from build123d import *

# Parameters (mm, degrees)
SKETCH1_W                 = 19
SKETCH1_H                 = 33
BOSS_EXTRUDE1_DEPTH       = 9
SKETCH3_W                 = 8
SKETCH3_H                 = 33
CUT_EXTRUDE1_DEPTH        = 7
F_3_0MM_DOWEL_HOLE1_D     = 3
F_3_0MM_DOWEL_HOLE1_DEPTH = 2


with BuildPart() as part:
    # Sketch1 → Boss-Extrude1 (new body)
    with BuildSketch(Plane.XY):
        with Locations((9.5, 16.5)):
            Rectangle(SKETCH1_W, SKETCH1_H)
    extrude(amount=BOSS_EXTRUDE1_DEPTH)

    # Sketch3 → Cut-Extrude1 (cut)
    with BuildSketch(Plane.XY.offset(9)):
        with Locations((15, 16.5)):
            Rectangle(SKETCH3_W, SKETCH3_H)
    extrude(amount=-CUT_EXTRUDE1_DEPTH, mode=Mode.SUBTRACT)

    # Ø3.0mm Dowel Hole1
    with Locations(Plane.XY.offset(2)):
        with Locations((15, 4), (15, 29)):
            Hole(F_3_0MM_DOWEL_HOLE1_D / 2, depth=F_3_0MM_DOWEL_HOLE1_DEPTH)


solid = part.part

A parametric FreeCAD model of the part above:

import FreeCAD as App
import Part
import Sketcher
from FreeCAD import Vector
Q = App.Units.Quantity

doc = App.newDocument("Part")
params = doc.addObject("Spreadsheet::Sheet", "Params")
for row, (alias, value) in enumerate([
    ("sketch1_width", "19 mm"),
    ("sketch1_height", "33 mm"),
    ("pad1_length", "9 mm"),
    ("sketch2_width", "8 mm"),
    ("sketch2_height", "33 mm"),
    ("pocket1_length", "7 mm"),
    ("sketch3_diameter", "3 mm"),
    ("hole_diameter", "3 mm"),
    ("hole_depth", "2 mm"),
], start=1):
    params.set(f"A{row}", alias)
    params.set(f"B{row}", "=" + value)
    params.setAlias(f"B{row}", alias)

body = doc.addObject("PartDesign::Body", "Body")

# Sketch on XY plane
sketch1 = body.newObject("Sketcher::SketchObject", "Sketch")
sketch1.AttachmentSupport = (doc.getObject("XY_Plane"), [""])
sketch1.MapMode = "FlatFace"
sketch1.addGeometry([
    Part.LineSegment(Vector(0, 33, 0), Vector(0, 0, 0)),
    Part.LineSegment(Vector(0, 0, 0), Vector(19, 0, 0)),
    Part.LineSegment(Vector(19, 0, 0), Vector(19, 33, 0)),
    Part.LineSegment(Vector(19, 33, 0), Vector(0, 33, 0)),
], False)
sketch1.addConstraint([
    Sketcher.Constraint("Coincident", 0, 2, 1, 1),
    Sketcher.Constraint("Coincident", 1, 2, 2, 1),
    Sketcher.Constraint("Coincident", 2, 2, 3, 1),
    Sketcher.Constraint("Coincident", 3, 2, 0, 1),
    Sketcher.Constraint("Vertical", 0),
    Sketcher.Constraint("Horizontal", 1),
    Sketcher.Constraint("Vertical", 2),
    Sketcher.Constraint("Horizontal", 3),
    Sketcher.Constraint("Coincident", 0, 2, -1, 1),
    Sketcher.Constraint("DistanceX", 1, 1, 1, 2, Q("19 mm")),
    Sketcher.Constraint("DistanceY", 0, 2, 0, 1, Q("33 mm")),
])
sketch1.setExpression("Constraints[9]", "Params.sketch1_width")
sketch1.setExpression("Constraints[10]", "Params.sketch1_height")
pad1 = body.newObject("PartDesign::Pad", "Pad")
pad1.Profile = sketch1
pad1.setExpression("Length", "Params.pad1_length")

# Sketch on XY plane
sketch2 = body.newObject("Sketcher::SketchObject", "Sketch001")
sketch2.AttachmentSupport = (doc.getObject("XY_Plane"), [""])
sketch2.MapMode = "FlatFace"
sketch2.AttachmentOffset = App.Placement(Vector(0, 0, 9), App.Rotation())
sketch2.addGeometry([
    Part.LineSegment(Vector(11, 33, 0), Vector(11, 0, 0)),
    Part.LineSegment(Vector(11, 0, 0), Vector(19, 0, 0)),
    Part.LineSegment(Vector(19, 0, 0), Vector(19, 33, 0)),
    Part.LineSegment(Vector(19, 33, 0), Vector(11, 33, 0)),
], False)
sketch2.addConstraint([
    Sketcher.Constraint("Coincident", 0, 2, 1, 1),
    Sketcher.Constraint("Coincident", 1, 2, 2, 1),
    Sketcher.Constraint("Coincident", 2, 2, 3, 1),
    Sketcher.Constraint("Coincident", 3, 2, 0, 1),
    Sketcher.Constraint("Vertical", 0),
    Sketcher.Constraint("Horizontal", 1),
    Sketcher.Constraint("Vertical", 2),
    Sketcher.Constraint("Horizontal", 3),
    Sketcher.Constraint("PointOnObject", 0, 2, -1),
    Sketcher.Constraint("DistanceX", 1, 1, 1, 2, Q("8 mm")),
    Sketcher.Constraint("DistanceY", 0, 2, 0, 1, Q("33 mm")),
    Sketcher.Constraint("DistanceX", -1, 1, 0, 2, Q("11 mm")),
])
sketch2.setExpression("Constraints[9]", "Params.sketch2_width")
sketch2.setExpression("Constraints[10]", "Params.sketch2_height")
pocket1 = body.newObject("PartDesign::Pocket", "Pocket")
pocket1.Profile = sketch2
pocket1.setExpression("Length", "Params.pocket1_length")

# Sketch on XY plane
sketch3 = body.newObject("Sketcher::SketchObject", "Sketch002")
sketch3.AttachmentSupport = (doc.getObject("XY_Plane"), [""])
sketch3.MapMode = "FlatFace"
sketch3.AttachmentOffset = App.Placement(Vector(0, 0, 2), App.Rotation())
sketch3.addGeometry([
    Part.Circle(Vector(15, 4, 0), Vector(0, 0, 1), 1.5),
    Part.Circle(Vector(15, 29, 0), Vector(0, 0, 1), 1.5),
], False)
sketch3.addConstraint([
    Sketcher.Constraint("Equal", 0, 1),
    Sketcher.Constraint("Vertical", 0, 3, 1, 3),
    Sketcher.Constraint("Diameter", 0, Q("3 mm")),
    Sketcher.Constraint("DistanceX", -1, 1, 0, 3, Q("15 mm")),
    Sketcher.Constraint("DistanceY", -1, 1, 0, 3, Q("4 mm")),
    Sketcher.Constraint("DistanceY", -1, 1, 1, 3, Q("29 mm")),
])
sketch3.setExpression("Constraints[2]", "Params.sketch3_diameter")
doc.recompute()
hole = body.newObject("PartDesign::Hole", "Hole")
hole.Profile = sketch3
hole.ThreadType = "None"
hole.setExpression("Diameter", "Params.hole_diameter")
hole.DepthType = "Dimension"
hole.setExpression("Depth", "Params.hole_depth")
hole.DrillPoint = "Flat"

doc.recompute()
